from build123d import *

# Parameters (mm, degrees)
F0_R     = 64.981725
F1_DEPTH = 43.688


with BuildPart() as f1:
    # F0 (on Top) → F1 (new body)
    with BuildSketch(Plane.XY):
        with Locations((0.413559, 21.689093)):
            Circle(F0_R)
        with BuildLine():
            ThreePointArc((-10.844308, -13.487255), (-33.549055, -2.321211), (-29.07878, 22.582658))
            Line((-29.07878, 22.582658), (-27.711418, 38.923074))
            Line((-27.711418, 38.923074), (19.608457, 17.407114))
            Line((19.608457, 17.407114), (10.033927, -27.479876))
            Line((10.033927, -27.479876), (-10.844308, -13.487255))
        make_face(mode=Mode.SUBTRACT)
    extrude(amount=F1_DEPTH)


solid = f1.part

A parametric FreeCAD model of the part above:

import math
import FreeCAD as App
import Part
import Sketcher
Q = App.Units.Quantity

doc = App.newDocument("Part")
body = doc.addObject("PartDesign::Body", "Body")

# Sketch on XY plane
sketch1 = doc.addObject("Sketcher::SketchObject", "Sketch")
body.addObject(sketch1)
sketch1.AttachmentSupport = (doc.XY_Plane, [""])
sketch1.MapMode = "FlatFace"
sketch1.addGeometry([
    Part.Circle(App.Vector(0, 22, 0), App.Vector(0, 0, 1), 65),  # 0
    Part.LineSegment(App.Vector(10, -27, 0), App.Vector(-11, -13, 0)),  # 1
    Part.ArcOfCircle(Part.Circle(App.Vector(-15, 7, 0), App.Vector(0, 0, 1), 21), math.radians(133), math.radians(281)),  # 2
    Part.LineSegment(App.Vector(-29, 23, 0), App.Vector(-28, 39, 0)),  # 3
    Part.LineSegment(App.Vector(-28, 39, 0), App.Vector(20, 17, 0)),  # 4
    Part.LineSegment(App.Vector(20, 17, 0), App.Vector(10, -27, 0)),  # 5
], False)
sketch1.addConstraint([
    Sketcher.Constraint("Coincident", 1, 2, 2, 2),
    Sketcher.Constraint("Coincident", 2, 1, 3, 1),
    Sketcher.Constraint("Coincident", 3, 2, 4, 1),
    Sketcher.Constraint("Coincident", 4, 2, 5, 1),
    Sketcher.Constraint("Coincident", 5, 2, 1, 1),
    Sketcher.Constraint("Diameter", 0, Q("129.96345 mm")),
    Sketcher.Constraint("Radius", 2, Q("21.024092 mm")),
    Sketcher.Constraint("DistanceX", 0, 3, 4, 2, Q("19.194898 mm")),
    Sketcher.Constraint("Distance", 5, Q("45.89677 mm")),
    Sketcher.Constraint("DistanceX", -1, 1, 0, 3, Q("0.413559 mm")),
    Sketcher.Constraint("DistanceX", 2, 1, -1, 1, Q("29.07878 mm")),
    Sketcher.Constraint("DistanceX", 2, 3, 0, 3, Q("15.199791 mm")),
    Sketcher.Constraint("DistanceY", 2, 3, 0, 3, Q("14.525109 mm")),
    Sketcher.Constraint("DistanceY", 1, 2, 2, 3, Q("20.651239 mm")),
    Sketcher.Constraint("DistanceX", 2, 1, 3, 2, Q("1.367362 mm")),
    Sketcher.Constraint("DistanceY", 0, 3, 3, 2, Q("17.233981 mm")),
    Sketcher.Constraint("DistanceY", 4, 2, 0, 3, Q("4.281979 mm")),
    Sketcher.Constraint("DistanceY", 5, 2, 1, 2, Q("13.992621 mm")),
    Sketcher.Constraint("DistanceY", -1, 1, 0, 3, Q("21.689093 mm")),
])
pad1 = doc.addObject("PartDesign::Pad", "Pad")
body.addObject(pad1)
pad1.Profile = sketch1
pad1.Length = Q("1.72 in")

doc.recompute()
